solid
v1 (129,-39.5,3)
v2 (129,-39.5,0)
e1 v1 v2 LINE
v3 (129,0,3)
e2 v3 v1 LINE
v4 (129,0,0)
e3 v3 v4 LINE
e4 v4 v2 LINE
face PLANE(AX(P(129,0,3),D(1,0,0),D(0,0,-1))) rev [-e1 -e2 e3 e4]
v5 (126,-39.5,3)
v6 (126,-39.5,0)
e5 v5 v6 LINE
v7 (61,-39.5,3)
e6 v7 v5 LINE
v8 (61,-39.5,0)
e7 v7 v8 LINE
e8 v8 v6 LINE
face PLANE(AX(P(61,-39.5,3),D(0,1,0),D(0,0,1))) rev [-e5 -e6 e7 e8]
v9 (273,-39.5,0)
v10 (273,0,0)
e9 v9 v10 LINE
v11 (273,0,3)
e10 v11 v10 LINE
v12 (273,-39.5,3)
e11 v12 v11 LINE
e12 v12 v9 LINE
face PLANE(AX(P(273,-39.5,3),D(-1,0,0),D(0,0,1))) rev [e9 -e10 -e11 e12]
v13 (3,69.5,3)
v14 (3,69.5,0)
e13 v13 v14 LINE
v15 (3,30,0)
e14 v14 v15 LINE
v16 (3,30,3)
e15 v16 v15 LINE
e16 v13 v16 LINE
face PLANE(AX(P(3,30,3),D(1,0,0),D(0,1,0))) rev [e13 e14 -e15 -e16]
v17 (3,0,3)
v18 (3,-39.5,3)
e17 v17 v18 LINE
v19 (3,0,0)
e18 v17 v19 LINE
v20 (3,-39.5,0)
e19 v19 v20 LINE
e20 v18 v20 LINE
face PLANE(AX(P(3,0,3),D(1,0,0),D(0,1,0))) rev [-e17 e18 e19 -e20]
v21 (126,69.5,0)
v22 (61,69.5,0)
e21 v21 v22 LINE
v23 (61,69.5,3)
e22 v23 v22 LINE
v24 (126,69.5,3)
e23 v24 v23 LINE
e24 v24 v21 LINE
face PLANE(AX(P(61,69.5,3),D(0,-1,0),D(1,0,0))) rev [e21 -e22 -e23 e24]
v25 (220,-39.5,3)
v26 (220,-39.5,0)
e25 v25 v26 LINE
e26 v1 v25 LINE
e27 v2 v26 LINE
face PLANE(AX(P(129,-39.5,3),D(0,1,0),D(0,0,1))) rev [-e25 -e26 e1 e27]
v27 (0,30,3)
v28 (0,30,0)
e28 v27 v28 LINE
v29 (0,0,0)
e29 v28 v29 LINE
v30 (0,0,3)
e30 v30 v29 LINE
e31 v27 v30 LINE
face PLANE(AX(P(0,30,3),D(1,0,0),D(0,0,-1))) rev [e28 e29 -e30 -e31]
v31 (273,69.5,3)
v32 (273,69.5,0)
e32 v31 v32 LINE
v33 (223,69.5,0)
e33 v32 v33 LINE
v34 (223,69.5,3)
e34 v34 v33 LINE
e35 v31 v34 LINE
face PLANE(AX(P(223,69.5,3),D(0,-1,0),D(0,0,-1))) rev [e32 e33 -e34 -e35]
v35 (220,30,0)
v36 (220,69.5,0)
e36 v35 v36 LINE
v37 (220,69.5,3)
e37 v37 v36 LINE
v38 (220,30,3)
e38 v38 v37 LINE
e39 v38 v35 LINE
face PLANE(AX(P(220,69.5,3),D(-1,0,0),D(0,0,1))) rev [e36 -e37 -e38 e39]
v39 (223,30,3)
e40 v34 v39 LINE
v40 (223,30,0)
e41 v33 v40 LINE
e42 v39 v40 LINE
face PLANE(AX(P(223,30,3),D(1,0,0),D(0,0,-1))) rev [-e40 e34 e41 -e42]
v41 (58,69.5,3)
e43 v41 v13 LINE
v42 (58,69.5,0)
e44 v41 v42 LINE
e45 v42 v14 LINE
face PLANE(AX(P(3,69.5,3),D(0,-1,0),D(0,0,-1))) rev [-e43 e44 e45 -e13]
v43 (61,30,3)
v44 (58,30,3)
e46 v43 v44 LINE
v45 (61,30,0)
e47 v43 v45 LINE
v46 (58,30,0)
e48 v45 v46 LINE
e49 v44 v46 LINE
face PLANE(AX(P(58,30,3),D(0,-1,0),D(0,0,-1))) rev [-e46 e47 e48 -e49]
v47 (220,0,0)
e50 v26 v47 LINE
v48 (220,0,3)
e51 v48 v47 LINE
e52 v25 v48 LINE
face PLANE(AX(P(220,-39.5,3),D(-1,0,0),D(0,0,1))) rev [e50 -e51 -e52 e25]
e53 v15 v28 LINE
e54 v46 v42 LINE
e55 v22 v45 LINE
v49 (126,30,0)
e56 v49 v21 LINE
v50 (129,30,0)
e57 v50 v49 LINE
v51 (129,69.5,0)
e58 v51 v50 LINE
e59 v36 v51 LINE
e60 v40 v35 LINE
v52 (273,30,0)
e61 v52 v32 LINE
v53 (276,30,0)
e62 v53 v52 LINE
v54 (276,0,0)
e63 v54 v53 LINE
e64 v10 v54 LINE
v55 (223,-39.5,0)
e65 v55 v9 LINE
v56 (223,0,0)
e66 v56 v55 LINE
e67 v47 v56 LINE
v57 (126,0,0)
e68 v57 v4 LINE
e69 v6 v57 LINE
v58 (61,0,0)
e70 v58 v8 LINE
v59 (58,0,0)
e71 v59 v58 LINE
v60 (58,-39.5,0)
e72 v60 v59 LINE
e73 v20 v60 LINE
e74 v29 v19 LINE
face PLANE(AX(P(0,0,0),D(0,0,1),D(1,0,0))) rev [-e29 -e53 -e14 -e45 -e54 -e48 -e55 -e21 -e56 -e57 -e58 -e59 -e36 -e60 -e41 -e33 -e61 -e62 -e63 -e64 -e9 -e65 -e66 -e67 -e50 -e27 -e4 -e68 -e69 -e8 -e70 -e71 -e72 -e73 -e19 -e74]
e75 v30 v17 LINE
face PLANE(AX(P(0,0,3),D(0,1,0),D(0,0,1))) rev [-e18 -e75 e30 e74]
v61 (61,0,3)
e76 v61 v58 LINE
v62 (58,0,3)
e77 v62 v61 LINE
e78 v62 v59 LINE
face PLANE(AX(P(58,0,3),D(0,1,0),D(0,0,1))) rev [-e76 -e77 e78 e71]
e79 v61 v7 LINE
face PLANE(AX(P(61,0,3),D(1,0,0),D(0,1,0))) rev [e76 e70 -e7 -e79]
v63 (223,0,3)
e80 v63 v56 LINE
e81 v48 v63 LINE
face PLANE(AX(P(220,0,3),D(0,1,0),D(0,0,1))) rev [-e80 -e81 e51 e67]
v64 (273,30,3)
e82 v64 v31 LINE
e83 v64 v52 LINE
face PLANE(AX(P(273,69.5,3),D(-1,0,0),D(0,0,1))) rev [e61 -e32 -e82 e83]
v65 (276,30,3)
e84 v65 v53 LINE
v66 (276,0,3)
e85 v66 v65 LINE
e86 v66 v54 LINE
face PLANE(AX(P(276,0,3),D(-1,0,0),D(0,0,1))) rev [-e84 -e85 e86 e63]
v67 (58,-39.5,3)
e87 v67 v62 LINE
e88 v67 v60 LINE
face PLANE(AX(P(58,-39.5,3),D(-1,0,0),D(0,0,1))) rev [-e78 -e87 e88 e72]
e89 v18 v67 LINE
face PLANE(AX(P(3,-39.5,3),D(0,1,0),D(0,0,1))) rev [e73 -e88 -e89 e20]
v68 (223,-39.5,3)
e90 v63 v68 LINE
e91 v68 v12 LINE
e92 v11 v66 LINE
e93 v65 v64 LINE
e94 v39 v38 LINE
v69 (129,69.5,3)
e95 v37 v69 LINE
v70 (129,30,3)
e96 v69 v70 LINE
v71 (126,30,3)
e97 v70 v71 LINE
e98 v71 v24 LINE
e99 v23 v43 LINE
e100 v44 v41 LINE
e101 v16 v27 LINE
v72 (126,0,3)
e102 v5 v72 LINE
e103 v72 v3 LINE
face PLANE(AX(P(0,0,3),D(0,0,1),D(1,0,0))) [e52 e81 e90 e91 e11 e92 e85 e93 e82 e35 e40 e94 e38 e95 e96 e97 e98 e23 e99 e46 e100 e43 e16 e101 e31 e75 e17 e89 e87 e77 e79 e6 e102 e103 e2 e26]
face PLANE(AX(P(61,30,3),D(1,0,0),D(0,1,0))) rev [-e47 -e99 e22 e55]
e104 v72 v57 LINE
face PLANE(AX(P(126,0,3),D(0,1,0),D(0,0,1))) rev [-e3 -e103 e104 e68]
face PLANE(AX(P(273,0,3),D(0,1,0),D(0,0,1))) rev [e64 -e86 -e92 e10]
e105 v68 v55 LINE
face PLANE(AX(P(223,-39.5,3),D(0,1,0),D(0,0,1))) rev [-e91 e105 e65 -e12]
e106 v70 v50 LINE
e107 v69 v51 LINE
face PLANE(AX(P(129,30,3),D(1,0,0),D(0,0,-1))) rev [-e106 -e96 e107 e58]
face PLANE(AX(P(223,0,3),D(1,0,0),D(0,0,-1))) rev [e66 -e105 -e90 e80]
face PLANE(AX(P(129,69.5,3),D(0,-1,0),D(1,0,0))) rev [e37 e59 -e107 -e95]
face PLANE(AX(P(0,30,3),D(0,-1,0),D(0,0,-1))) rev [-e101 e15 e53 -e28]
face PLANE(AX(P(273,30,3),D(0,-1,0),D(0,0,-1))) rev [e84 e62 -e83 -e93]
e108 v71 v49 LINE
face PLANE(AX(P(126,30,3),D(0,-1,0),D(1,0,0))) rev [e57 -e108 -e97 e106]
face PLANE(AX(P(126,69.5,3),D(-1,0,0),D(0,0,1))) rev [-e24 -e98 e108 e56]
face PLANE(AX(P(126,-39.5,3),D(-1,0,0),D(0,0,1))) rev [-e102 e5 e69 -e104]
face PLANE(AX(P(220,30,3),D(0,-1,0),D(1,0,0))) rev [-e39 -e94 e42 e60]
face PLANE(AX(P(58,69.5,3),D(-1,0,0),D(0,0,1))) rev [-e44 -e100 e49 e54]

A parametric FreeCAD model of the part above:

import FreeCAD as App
import Part
import Sketcher
Q = App.Units.Quantity

doc = App.newDocument("Part")
body = doc.addObject("PartDesign::Body", "Body")

# Sketch on XY plane
sketch1 = body.newObject("Sketcher::SketchObject", "Sketch")
sketch1.AttachmentSupport = (doc.getObject("XY_Plane"), [""])
sketch1.MapMode = "FlatFace"
sketch1.addGeometry([
    Part.LineSegment(App.Vector(0, 0, 0), App.Vector(3, 0, 0)),  # 0
    Part.LineSegment(App.Vector(3, 0, 0), App.Vector(3, -39.5, 0)),  # 1
    Part.LineSegment(App.Vector(3, -39.5, 0), App.Vector(58, -39.5, 0)),  # 2
    Part.LineSegment(App.Vector(58, -39.5, 0), App.Vector(58, 0, 0)),  # 3
    Part.LineSegment(App.Vector(58, 0, 0), App.Vector(61, 0, 0)),  # 4
    Part.LineSegment(App.Vector(61, 0, 0), App.Vector(61, -39.5, 0)),  # 5
    Part.LineSegment(App.Vector(61, -39.5, 0), App.Vector(126, -39.5, 0)),  # 6
    Part.LineSegment(App.Vector(126, -39.5, 0), App.Vector(126, 0, 0)),  # 7
    Part.LineSegment(App.Vector(126, 0, 0), App.Vector(129, 0, 0)),  # 8
    Part.LineSegment(App.Vector(129, 0, 0), App.Vector(129, -39.5, 0)),  # 9
    Part.LineSegment(App.Vector(129, -39.5, 0), App.Vector(220, -39.5, 0)),  # 10
    Part.LineSegment(App.Vector(220, -39.5, 0), App.Vector(220, 0, 0)),  # 11
    Part.LineSegment(App.Vector(220, 0, 0), App.Vector(223, 0, 0)),  # 12
    Part.LineSegment(App.Vector(223, 0, 0), App.Vector(223, -39.5, 0)),  # 13
    Part.LineSegment(App.Vector(223, -39.5, 0), App.Vector(273, -39.5, 0)),  # 14
    Part.LineSegment(App.Vector(273, -39.5, 0), App.Vector(273, 0, 0)),  # 15
    Part.LineSegment(App.Vector(273, 0, 0), App.Vector(276, 0, 0)),  # 16
    Part.LineSegment(App.Vector(276, 0, 0), App.Vector(276, 30, 0)),  # 17
    Part.LineSegment(App.Vector(276, 30, 0), App.Vector(273, 30, 0)),  # 18
    Part.LineSegment(App.Vector(273, 30, 0), App.Vector(273, 69.5, 0)),  # 19
    Part.LineSegment(App.Vector(273, 69.5, 0), App.Vector(223, 69.5, 0)),  # 20
    Part.LineSegment(App.Vector(223, 69.5, 0), App.Vector(223, 30, 0)),  # 21
    Part.LineSegment(App.Vector(223, 30, 0), App.Vector(220, 30, 0)),  # 22
    Part.LineSegment(App.Vector(220, 30, 0), App.Vector(220, 69.5, 0)),  # 23
    Part.LineSegment(App.Vector(220, 69.5, 0), App.Vector(129, 69.5, 0)),  # 24
    Part.LineSegment(App.Vector(129, 69.5, 0), App.Vector(129, 30, 0)),  # 25
    Part.LineSegment(App.Vector(129, 30, 0), App.Vector(126, 30, 0)),  # 26
    Part.LineSegment(App.Vector(126, 30, 0), App.Vector(126, 69.5, 0)),  # 27
    Part.LineSegment(App.Vector(126, 69.5, 0), App.Vector(61, 69.5, 0)),  # 28
    Part.LineSegment(App.Vector(61, 69.5, 0), App.Vector(61, 30, 0)),  # 29
    Part.LineSegment(App.Vector(61, 30, 0), App.Vector(58, 30, 0)),  # 30
    Part.LineSegment(App.Vector(58, 30, 0), App.Vector(58, 69.5, 0)),  # 31
    Part.LineSegment(App.Vector(58, 69.5, 0), App.Vector(3, 69.5, 0)),  # 32
    Part.LineSegment(App.Vector(3, 69.5, 0), App.Vector(3, 30, 0)),  # 33
    Part.LineSegment(App.Vector(3, 30, 0), App.Vector(0, 30, 0)),  # 34
    Part.LineSegment(App.Vector(0, 30, 0), App.Vector(0, 0, 0)),  # 35
], False)
sketch1.addConstraint([
    Sketcher.Constraint("Coincident", 0, 2, 1, 1),
    Sketcher.Constraint("Coincident", 1, 2, 2, 1),
    Sketcher.Constraint("Coincident", 2, 2, 3, 1),
    Sketcher.Constraint("Coincident", 3, 2, 4, 1),
    Sketcher.Constraint("Coincident", 4, 2, 5, 1),
    Sketcher.Constraint("Coincident", 5, 2, 6, 1),
    Sketcher.Constraint("Coincident", 6, 2, 7, 1),
    Sketcher.Constraint("Coincident", 7, 2, 8, 1),
    Sketcher.Constraint("Coincident", 8, 2, 9, 1),
    Sketcher.Constraint("Coincident", 9, 2, 10, 1),
    Sketcher.Constraint("Coincident", 10, 2, 11, 1),
    Sketcher.Constraint("Coincident", 11, 2, 12, 1),
    Sketcher.Constraint("Coincident", 12, 2, 13, 1),
    Sketcher.Constraint("Coincident", 13, 2, 14, 1),
    Sketcher.Constraint("Coincident", 14, 2, 15, 1),
    Sketcher.Constraint("Coincident", 15, 2, 16, 1),
    Sketcher.Constraint("Coincident", 16, 2, 17, 1),
    Sketcher.Constraint("Coincident", 17, 2, 18, 1),
    Sketcher.Constraint("Coincident", 18, 2, 19, 1),
    Sketcher.Constraint("Coincident", 19, 2, 20, 1),
    Sketcher.Constraint("Coincident", 20, 2, 21, 1),
    Sketcher.Constraint("Coincident", 21, 2, 22, 1),
    Sketcher.Constraint("Coincident", 22, 2, 23, 1),
    Sketcher.Constraint("Coincident", 23, 2, 24, 1),
    Sketcher.Constraint("Coincident", 24, 2, 25, 1),
    Sketcher.Constraint("Coincident", 25, 2, 26, 1),
    Sketcher.Constraint("Coincident", 26, 2, 27, 1),
    Sketcher.Constraint("Coincident", 27, 2, 28, 1),
    Sketcher.Constraint("Coincident", 28, 2, 29, 1),
    Sketcher.Constraint("Coincident", 29, 2, 30, 1),
    Sketcher.Constraint("Coincident", 30, 2, 31, 1),
    Sketcher.Constraint("Coincident", 31, 2, 32, 1),
    Sketcher.Constraint("Coincident", 32, 2, 33, 1),
    Sketcher.Constraint("Coincident", 33, 2, 34, 1),
    Sketcher.Constraint("Coincident", 34, 2, 35, 1),
    Sketcher.Constraint("Coincident", 35, 2, 0, 1),
    Sketcher.Constraint("Horizontal", 0),
    Sketcher.Constraint("Vertical", 1),
    Sketcher.Constraint("Horizontal", 2),
    Sketcher.Constraint("Vertical", 3),
    Sketcher.Constraint("Horizontal", 4),
    Sketcher.Constraint("Vertical", 5),
    Sketcher.Constraint("Horizontal", 6),
    Sketcher.Constraint("Vertical", 7),
    Sketcher.Constraint("Horizontal", 8),
    Sketcher.Constraint("Vertical", 9),
    Sketcher.Constraint("Horizontal", 10),
    Sketcher.Constraint("Vertical", 11),
    Sketcher.Constraint("Horizontal", 12),
    Sketcher.Constraint("Vertical", 13),
    Sketcher.Constraint("Horizontal", 14),
    Sketcher.Constraint("Vertical", 15),
    Sketcher.Constraint("Horizontal", 16),
    Sketcher.Constraint("Vertical", 17),
    Sketcher.Constraint("Horizontal", 18),
    Sketcher.Constraint("Vertical", 19),
    Sketcher.Constraint("Horizontal", 20),
    Sketcher.Constraint("Vertical", 21),
    Sketcher.Constraint("Horizontal", 22),
    Sketcher.Constraint("Vertical", 23),
    Sketcher.Constraint("Horizontal", 24),
    Sketcher.Constraint("Vertical", 25),
    Sketcher.Constraint("Horizontal", 26),
    Sketcher.Constraint("Vertical", 27),
    Sketcher.Constraint("Horizontal", 28),
    Sketcher.Constraint("Vertical", 29),
    Sketcher.Constraint("Horizontal", 30),
    Sketcher.Constraint("Vertical", 31),
    Sketcher.Constraint("Horizontal", 32),
    Sketcher.Constraint("Vertical", 33),
    Sketcher.Constraint("Horizontal", 34),
    Sketcher.Constraint("Vertical", 35),
    Sketcher.Constraint("Coincident", 35, 2, -1, 1),
    Sketcher.Constraint("PointOnObject", 3, 2, -1),
    Sketcher.Constraint("PointOnObject", 7, 2, -1),
    Sketcher.Constraint("PointOnObject", 11, 2, -1),
    Sketcher.Constraint("PointOnObject", 15, 2, -1),
    Sketcher.Constraint("Horizontal", 2, 2, 5, 2),
    Sketcher.Constraint("Horizontal", 6, 2, 9, 2),
    Sketcher.Constraint("Horizontal", 10, 2, 13, 2),
    Sketcher.Constraint("Horizontal", 18, 2, 21, 2),
    Sketcher.Constraint("Horizontal", 20, 2, 23, 2),
    Sketcher.Constraint("Horizontal", 22, 2, 25, 2),
    Sketcher.Constraint("Horizontal", 24, 2, 27, 2),
    Sketcher.Constraint("Horizontal", 26, 2, 29, 2),
    Sketcher.Constraint("Horizontal", 28, 2, 31, 2),
    Sketcher.Constraint("Horizontal", 30, 2, 33, 2),
    Sketcher.Constraint("Vertical", 15, 2, 18, 2),
    Sketcher.Constraint("Vertical", 13, 2, 20, 2),
    Sketcher.Constraint("Vertical", 11, 2, 22, 2),
    Sketcher.Constraint("Vertical", 9, 2, 24, 2),
    Sketcher.Constraint("Vertical", 7, 2, 26, 2),
    Sketcher.Constraint("Vertical", 5, 2, 28, 2),
    Sketcher.Constraint("Vertical", 3, 2, 30, 2),
    Sketcher.Constraint("Vertical", 1, 2, 32, 2),
    Sketcher.Constraint("Equal", 0, 4),
    Sketcher.Constraint("Equal", 4, 8),
    Sketcher.Constraint("Equal", 8, 12),
    Sketcher.Constraint("Equal", 12, 16),
    Sketcher.Constraint("Equal", 15, 19),
    Sketcher.Constraint("DistanceX", 0, 1, 0, 2, Q("3 mm")),
    Sketcher.Constraint("DistanceX", 2, 1, 2, 2, Q("55 mm")),
    Sketcher.Constraint("DistanceX", 6, 1, 6, 2, Q("65 mm")),
    Sketcher.Constraint("DistanceX", 10, 1, 10, 2, Q("91 mm")),
    Sketcher.Constraint("DistanceX", 14, 1, 14, 2, Q("50 mm")),
    Sketcher.Constraint("DistanceY", 17, 1, 17, 2, Q("30 mm")),
    Sketcher.Constraint("DistanceY", 1, 2, 1, 1, Q("39.5 mm")),
])
pad1 = body.newObject("PartDesign::Pad", "Pad")
pad1.Profile = sketch1
pad1.Length = 3

doc.recompute()
